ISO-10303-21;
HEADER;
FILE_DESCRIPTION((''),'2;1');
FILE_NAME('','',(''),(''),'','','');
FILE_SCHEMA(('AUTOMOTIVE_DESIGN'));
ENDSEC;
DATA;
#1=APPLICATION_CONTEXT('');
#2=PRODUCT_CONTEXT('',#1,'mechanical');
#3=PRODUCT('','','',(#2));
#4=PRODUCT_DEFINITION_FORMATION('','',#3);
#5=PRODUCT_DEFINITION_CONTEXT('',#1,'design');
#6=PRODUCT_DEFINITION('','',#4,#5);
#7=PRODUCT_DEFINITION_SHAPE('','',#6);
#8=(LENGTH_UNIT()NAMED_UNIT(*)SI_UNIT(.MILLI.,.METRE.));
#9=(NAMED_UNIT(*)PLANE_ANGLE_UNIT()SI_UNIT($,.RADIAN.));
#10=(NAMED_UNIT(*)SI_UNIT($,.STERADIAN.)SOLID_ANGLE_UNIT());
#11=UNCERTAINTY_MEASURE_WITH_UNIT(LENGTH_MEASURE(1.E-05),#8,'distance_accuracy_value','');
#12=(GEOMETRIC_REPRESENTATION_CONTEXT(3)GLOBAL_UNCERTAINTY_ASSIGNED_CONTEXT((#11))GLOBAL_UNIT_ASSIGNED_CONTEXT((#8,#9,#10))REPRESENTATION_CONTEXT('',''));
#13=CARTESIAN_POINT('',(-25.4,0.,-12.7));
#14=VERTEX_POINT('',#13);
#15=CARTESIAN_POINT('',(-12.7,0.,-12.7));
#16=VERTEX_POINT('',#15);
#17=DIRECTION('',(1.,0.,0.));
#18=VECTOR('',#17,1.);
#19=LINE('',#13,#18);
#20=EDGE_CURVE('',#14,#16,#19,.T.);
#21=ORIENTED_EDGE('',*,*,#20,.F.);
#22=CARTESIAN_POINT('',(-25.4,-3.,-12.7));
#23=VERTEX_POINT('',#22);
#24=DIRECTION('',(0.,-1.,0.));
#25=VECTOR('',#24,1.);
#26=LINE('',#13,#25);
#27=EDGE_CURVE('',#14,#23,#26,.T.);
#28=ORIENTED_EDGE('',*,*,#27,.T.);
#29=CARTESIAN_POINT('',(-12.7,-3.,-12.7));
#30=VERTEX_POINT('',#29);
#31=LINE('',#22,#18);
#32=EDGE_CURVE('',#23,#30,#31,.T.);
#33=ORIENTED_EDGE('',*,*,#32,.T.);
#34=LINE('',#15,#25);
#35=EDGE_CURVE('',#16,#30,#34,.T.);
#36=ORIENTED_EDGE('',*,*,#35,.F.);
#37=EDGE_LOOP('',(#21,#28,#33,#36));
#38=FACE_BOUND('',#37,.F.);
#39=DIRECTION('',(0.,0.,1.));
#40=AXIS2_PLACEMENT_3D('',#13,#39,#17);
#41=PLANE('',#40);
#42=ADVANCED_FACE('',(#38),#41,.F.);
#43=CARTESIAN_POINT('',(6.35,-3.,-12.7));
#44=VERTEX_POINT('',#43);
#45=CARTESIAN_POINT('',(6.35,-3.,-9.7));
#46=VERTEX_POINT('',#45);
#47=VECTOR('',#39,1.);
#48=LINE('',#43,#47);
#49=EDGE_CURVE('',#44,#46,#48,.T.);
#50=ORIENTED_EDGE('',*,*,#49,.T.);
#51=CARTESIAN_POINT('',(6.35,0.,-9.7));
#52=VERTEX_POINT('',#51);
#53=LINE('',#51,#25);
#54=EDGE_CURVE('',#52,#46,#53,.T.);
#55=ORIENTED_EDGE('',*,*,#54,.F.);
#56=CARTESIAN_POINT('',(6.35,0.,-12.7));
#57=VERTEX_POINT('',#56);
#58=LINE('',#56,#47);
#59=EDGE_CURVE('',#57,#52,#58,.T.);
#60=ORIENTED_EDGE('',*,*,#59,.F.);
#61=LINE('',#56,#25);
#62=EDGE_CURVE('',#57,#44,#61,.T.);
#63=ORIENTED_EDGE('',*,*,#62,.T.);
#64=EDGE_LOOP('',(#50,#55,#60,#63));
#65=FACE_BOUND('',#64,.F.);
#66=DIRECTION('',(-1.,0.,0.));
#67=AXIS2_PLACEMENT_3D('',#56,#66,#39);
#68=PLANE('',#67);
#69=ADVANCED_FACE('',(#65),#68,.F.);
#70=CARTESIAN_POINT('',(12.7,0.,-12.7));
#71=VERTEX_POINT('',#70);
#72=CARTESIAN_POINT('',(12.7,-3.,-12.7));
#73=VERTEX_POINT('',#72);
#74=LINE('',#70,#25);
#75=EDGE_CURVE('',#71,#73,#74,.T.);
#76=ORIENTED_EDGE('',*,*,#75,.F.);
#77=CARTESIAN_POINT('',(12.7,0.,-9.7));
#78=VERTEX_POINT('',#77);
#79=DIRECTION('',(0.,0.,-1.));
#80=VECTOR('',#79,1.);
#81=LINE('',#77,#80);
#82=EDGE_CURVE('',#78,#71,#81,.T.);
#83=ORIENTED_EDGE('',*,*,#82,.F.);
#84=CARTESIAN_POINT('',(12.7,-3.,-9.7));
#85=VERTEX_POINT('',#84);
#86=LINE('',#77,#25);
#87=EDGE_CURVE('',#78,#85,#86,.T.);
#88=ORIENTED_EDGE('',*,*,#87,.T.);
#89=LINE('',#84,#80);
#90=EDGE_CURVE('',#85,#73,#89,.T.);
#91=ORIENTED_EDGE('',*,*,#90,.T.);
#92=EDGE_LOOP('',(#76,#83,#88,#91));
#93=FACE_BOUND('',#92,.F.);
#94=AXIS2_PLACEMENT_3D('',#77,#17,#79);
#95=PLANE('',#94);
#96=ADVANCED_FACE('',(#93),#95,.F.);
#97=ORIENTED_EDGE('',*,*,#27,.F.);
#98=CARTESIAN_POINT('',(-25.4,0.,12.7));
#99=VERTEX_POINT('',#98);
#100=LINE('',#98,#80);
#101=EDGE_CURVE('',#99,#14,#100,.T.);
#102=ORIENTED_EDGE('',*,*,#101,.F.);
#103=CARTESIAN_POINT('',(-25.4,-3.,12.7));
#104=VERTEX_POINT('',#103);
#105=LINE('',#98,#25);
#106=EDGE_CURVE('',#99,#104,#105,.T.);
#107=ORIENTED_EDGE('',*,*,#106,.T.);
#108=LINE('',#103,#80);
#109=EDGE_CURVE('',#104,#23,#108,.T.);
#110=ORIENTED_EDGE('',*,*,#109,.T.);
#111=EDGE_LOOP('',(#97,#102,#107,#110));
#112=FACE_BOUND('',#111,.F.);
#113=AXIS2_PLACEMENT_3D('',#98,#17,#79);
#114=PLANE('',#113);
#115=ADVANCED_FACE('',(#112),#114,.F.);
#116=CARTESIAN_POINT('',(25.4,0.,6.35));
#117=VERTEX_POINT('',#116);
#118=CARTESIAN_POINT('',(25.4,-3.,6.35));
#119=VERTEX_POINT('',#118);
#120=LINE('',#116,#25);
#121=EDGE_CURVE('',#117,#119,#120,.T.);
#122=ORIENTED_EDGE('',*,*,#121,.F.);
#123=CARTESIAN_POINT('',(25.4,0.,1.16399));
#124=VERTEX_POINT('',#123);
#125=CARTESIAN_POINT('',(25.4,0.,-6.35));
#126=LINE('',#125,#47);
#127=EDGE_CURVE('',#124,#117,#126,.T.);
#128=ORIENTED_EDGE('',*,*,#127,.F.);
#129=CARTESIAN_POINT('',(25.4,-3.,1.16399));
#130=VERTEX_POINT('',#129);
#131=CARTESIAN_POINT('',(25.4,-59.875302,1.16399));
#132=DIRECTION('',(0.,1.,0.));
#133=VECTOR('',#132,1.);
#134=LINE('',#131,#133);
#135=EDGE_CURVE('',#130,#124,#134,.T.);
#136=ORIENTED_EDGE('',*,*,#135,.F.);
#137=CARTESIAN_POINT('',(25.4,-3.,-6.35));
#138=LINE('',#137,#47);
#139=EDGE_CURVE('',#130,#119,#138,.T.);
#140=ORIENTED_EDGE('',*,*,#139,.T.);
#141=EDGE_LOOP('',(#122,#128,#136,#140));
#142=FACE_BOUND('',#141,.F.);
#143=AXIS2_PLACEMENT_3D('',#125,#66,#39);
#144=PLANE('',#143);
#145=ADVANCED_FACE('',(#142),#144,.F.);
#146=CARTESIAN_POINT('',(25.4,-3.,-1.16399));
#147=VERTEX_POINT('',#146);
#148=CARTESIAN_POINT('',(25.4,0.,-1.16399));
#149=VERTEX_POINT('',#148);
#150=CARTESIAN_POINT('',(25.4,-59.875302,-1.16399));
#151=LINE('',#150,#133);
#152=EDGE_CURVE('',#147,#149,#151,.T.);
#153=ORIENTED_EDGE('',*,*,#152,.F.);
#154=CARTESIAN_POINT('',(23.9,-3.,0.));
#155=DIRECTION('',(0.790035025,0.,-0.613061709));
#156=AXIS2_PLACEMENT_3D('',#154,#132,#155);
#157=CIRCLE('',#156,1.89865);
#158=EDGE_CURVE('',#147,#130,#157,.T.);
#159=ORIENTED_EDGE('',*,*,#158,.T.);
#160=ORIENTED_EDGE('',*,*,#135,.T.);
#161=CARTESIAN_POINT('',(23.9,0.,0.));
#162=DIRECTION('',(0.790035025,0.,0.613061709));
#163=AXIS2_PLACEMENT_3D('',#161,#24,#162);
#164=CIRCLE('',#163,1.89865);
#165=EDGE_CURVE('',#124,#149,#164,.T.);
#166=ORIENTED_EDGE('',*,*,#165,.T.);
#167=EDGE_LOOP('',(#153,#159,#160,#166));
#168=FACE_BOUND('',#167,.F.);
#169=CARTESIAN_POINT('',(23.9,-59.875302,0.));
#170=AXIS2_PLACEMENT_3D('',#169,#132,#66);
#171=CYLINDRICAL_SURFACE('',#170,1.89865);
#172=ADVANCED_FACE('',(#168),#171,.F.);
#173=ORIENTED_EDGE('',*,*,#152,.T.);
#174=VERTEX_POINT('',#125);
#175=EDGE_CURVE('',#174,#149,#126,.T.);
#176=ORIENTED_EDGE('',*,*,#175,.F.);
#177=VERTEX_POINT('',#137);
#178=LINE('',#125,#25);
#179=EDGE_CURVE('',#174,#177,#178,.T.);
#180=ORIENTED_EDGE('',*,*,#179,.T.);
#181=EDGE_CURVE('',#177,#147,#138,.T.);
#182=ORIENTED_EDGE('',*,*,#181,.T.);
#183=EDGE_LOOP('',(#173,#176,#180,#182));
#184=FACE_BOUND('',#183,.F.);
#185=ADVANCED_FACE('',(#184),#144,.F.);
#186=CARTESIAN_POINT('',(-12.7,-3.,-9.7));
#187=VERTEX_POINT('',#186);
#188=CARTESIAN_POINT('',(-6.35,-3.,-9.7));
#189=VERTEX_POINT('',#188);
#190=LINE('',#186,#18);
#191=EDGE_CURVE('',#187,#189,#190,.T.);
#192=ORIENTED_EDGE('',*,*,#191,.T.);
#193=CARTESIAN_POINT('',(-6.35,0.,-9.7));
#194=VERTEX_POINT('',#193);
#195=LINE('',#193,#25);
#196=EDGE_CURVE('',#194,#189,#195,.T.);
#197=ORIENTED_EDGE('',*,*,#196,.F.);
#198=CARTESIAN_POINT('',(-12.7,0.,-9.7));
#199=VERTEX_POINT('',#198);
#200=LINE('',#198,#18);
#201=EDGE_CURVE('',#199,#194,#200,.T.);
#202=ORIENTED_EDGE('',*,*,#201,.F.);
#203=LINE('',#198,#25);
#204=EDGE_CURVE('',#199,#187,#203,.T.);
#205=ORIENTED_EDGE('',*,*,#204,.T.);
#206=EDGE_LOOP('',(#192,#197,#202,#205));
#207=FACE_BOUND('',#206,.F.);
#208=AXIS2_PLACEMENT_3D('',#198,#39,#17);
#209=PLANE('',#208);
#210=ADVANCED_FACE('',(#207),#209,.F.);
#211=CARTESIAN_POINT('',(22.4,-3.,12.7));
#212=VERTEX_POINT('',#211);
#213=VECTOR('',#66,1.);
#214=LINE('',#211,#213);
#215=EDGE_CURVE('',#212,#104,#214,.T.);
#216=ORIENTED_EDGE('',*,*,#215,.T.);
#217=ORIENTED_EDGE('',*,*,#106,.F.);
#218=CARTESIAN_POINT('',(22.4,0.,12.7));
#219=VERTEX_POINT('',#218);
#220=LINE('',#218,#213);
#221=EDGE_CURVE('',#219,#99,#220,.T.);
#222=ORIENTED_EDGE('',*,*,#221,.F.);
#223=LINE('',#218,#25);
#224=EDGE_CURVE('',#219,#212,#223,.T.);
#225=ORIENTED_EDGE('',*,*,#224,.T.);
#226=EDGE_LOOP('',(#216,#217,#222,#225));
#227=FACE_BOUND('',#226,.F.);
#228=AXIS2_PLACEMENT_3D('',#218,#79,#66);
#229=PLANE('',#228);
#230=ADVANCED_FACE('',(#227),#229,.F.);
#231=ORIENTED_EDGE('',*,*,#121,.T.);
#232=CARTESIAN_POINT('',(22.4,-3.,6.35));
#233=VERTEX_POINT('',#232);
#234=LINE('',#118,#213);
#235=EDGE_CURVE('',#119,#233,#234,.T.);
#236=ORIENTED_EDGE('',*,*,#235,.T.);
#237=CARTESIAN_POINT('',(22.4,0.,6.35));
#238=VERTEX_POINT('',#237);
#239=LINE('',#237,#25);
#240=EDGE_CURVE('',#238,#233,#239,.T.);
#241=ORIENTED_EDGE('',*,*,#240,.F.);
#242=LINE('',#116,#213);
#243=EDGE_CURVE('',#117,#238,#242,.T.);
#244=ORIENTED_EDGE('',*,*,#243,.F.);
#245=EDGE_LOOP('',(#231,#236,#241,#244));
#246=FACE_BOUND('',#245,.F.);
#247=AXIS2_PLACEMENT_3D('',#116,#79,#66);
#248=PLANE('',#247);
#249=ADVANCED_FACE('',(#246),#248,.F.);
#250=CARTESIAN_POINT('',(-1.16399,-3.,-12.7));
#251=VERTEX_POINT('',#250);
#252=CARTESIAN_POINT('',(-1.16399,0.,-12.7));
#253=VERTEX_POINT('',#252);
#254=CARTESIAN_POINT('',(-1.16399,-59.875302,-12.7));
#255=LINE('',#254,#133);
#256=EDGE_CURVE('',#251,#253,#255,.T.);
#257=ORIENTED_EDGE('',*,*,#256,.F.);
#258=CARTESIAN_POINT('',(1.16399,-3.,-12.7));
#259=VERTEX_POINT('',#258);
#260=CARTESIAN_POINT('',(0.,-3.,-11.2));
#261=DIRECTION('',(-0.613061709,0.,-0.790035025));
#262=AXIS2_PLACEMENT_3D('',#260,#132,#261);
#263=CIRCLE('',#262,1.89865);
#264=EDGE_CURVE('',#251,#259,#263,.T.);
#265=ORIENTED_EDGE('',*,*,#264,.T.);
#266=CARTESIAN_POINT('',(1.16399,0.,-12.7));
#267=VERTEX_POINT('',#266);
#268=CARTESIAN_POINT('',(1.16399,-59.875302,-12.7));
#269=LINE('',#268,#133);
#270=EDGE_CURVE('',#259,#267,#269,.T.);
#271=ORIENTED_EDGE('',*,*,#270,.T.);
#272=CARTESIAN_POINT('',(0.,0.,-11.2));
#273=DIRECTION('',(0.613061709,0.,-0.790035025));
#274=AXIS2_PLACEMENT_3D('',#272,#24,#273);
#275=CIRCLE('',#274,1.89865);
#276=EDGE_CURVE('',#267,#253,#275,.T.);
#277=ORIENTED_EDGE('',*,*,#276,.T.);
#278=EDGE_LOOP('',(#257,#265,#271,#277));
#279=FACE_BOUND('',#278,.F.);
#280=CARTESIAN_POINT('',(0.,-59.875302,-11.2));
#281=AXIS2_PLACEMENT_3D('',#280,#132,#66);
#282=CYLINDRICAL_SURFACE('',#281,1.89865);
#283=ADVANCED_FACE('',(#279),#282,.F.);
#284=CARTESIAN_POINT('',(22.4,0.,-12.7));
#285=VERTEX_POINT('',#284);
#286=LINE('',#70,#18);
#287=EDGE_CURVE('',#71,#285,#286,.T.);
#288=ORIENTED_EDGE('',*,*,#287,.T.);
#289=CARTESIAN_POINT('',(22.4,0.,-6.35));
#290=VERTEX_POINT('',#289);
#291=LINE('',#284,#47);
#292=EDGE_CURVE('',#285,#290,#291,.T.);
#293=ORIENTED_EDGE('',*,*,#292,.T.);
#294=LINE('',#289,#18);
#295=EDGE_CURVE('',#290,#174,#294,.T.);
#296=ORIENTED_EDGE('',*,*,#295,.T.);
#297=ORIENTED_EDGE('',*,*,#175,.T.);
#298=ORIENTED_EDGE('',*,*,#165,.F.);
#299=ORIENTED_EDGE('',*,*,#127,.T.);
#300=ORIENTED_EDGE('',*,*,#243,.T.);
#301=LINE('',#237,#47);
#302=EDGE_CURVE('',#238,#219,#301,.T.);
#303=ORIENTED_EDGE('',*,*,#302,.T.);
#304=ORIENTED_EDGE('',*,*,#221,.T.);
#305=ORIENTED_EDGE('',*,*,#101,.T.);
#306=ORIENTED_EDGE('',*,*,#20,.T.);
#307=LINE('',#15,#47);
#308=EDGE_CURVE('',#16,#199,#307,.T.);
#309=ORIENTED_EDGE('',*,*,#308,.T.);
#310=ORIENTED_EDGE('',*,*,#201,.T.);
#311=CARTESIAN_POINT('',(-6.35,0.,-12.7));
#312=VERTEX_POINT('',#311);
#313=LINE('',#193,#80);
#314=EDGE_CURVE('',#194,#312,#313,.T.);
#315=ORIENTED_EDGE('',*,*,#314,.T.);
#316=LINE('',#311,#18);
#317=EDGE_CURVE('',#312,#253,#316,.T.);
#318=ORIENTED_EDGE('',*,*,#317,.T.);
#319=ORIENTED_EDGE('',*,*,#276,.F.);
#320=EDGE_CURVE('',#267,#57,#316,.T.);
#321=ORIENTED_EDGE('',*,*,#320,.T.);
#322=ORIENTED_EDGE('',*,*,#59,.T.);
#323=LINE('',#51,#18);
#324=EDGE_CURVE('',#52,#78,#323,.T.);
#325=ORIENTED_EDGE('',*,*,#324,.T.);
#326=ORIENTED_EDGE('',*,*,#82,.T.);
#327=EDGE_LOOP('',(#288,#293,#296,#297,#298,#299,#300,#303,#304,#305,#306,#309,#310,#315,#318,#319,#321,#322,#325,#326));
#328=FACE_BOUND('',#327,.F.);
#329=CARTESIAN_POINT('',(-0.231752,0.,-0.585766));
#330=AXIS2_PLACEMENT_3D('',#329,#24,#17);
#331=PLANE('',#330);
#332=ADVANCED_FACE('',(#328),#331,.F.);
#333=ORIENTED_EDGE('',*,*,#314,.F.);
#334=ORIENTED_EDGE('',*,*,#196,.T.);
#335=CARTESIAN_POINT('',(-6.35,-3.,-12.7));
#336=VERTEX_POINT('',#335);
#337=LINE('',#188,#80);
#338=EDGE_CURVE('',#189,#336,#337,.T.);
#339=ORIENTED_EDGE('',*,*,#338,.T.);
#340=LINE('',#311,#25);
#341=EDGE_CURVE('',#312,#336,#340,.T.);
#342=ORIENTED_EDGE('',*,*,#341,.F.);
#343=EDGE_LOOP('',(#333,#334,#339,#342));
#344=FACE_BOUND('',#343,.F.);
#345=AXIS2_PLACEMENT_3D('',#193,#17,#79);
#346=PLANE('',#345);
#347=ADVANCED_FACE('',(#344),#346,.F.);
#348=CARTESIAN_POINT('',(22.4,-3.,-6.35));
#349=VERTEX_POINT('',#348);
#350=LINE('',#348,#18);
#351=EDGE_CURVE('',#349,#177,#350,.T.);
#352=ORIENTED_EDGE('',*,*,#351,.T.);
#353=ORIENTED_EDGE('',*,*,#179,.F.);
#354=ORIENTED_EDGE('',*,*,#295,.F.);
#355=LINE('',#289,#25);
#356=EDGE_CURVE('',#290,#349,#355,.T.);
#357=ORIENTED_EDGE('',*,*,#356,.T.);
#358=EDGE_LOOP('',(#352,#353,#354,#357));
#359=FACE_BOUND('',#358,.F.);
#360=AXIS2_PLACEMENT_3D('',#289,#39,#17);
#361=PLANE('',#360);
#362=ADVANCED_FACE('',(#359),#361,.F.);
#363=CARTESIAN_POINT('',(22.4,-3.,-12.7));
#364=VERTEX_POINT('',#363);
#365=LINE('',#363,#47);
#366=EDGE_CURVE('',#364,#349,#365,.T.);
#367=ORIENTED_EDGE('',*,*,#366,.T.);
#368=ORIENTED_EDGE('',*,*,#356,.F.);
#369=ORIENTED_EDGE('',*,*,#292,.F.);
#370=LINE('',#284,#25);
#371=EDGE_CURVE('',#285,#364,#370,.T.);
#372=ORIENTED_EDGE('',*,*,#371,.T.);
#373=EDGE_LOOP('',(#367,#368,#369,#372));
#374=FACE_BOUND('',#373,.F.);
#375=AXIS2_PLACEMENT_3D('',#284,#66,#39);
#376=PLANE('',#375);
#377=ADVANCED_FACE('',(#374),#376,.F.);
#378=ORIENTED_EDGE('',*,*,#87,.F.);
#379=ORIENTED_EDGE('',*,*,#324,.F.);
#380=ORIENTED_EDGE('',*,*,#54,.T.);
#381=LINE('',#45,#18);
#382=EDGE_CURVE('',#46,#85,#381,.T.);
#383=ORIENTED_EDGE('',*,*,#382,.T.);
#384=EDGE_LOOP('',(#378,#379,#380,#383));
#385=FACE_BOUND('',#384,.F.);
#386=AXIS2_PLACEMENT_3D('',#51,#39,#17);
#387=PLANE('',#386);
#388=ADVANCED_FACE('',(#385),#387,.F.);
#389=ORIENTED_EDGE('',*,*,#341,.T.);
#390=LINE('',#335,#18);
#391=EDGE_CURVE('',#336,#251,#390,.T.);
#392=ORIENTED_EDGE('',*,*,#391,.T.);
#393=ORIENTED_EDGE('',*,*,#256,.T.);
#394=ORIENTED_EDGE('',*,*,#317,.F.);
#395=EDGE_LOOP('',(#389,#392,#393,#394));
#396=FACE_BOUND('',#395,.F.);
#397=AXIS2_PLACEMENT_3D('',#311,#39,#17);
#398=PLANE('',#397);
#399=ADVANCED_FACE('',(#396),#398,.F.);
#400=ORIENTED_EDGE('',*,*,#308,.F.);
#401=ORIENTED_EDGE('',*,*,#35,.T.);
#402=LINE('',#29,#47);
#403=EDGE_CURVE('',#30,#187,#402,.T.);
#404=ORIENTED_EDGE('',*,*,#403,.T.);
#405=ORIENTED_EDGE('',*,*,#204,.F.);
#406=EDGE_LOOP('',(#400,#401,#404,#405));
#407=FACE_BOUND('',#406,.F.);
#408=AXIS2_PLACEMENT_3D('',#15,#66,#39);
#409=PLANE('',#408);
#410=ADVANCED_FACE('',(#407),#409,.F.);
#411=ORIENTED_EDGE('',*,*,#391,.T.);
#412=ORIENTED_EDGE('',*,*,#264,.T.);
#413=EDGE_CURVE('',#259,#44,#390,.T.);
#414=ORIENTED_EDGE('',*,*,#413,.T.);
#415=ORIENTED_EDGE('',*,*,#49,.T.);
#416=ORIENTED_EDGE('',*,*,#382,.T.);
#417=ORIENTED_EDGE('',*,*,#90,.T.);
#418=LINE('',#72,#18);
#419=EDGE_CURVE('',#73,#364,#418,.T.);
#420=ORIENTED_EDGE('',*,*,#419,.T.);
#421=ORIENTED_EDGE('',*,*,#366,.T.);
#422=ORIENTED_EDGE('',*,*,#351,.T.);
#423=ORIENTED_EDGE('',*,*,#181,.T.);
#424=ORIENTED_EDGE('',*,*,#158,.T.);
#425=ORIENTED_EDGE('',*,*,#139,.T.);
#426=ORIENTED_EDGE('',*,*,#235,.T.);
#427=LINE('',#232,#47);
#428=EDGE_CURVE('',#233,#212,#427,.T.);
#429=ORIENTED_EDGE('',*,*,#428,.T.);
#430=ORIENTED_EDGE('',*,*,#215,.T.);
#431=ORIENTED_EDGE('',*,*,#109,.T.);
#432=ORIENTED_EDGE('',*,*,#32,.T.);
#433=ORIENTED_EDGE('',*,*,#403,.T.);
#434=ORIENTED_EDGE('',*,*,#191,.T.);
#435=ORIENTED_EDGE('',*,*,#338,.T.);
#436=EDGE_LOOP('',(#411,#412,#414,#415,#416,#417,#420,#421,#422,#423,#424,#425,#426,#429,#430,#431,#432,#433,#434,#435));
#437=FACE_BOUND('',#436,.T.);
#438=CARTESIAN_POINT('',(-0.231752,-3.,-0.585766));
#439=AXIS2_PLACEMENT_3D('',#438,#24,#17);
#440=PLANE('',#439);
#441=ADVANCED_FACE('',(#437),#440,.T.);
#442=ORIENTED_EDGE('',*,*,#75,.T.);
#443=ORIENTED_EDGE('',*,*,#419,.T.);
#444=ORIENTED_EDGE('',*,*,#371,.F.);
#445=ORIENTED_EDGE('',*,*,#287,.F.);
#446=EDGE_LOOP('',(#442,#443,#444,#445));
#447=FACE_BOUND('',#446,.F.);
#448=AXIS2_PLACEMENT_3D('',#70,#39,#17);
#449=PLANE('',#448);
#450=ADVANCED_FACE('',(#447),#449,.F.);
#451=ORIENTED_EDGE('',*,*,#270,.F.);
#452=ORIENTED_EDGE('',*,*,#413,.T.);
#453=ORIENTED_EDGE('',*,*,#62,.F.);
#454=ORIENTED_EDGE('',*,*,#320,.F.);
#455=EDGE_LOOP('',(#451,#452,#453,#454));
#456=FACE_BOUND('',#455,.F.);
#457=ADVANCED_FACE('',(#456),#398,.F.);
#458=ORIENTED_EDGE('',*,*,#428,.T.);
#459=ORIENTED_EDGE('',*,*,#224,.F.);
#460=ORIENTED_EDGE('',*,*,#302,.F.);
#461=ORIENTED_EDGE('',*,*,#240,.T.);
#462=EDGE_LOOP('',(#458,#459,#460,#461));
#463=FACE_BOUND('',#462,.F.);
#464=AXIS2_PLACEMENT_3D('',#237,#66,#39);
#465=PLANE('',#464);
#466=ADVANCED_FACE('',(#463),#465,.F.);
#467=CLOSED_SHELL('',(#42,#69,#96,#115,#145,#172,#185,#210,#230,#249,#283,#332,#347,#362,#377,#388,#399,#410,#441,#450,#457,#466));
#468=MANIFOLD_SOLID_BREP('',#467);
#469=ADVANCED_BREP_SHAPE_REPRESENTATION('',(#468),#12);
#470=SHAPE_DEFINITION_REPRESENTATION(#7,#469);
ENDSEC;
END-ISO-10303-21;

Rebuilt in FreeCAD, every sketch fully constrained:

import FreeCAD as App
import Part
import Sketcher

V = App.Vector
Q = App.Units.Quantity


def add_polygon(sketch, points):
    """Adds a closed chain of lines whose ends are joined by coincident constraints."""
    first, n = sketch.GeometryCount, len(points)
    for a, b in zip(points, points[1:] + points[:1]):
        sketch.addGeometry(Part.LineSegment(App.Vector(*a, 0), App.Vector(*b, 0)), False)
    for i in range(n):
        sketch.addConstraint(Sketcher.Constraint("Coincident", first + i, 2, first + (i + 1) % n, 1))

doc = App.newDocument("Part")
body = doc.addObject("PartDesign::Body", "Body")

sketch1 = doc.addObject("Sketcher::SketchObject", "Sketch")
body.addObject(sketch1)
sketch1.AttachmentSupport = (doc.XZ_Plane, [""])
sketch1.MapMode = "FlatFace"
add_polygon(sketch1, [(22.4, 12.7), (-25.4, 12.7), (-25.4, -12.7), (-12.7, -12.7), (-12.7, -9.7), (-6.35, -9.7), (-6.35, -12.7), (6.35, -12.7), (6.35, -9.7), (12.7, -9.7), (12.7, -12.7), (22.4, -12.7), (22.4, -6.35), (25.4, -6.35), (25.4, 6.35), (22.4, 6.35)])
sketch1.addConstraint(Sketcher.Constraint("Horizontal", 0))
sketch1.addConstraint(Sketcher.Constraint("Vertical", 1))
sketch1.addConstraint(Sketcher.Constraint("Horizontal", 2))
sketch1.addConstraint(Sketcher.Constraint("Vertical", 3))
sketch1.addConstraint(Sketcher.Constraint("Horizontal", 4))
sketch1.addConstraint(Sketcher.Constraint("Vertical", 5))
sketch1.addConstraint(Sketcher.Constraint("Horizontal", 6))
sketch1.addConstraint(Sketcher.Constraint("Vertical", 7))
sketch1.addConstraint(Sketcher.Constraint("Horizontal", 8))
sketch1.addConstraint(Sketcher.Constraint("Vertical", 9))
sketch1.addConstraint(Sketcher.Constraint("Horizontal", 10))
sketch1.addConstraint(Sketcher.Constraint("Vertical", 11))
sketch1.addConstraint(Sketcher.Constraint("Horizontal", 12))
sketch1.addConstraint(Sketcher.Constraint("Vertical", 13))
sketch1.addConstraint(Sketcher.Constraint("Horizontal", 14))
sketch1.addConstraint(Sketcher.Constraint("Vertical", 15))
sketch1.addConstraint(Sketcher.Constraint("Symmetric", 4, 2, 7, 2, -2))
sketch1.addConstraint(Sketcher.Constraint("Symmetric", 2, 2, 9, 2, -2))
sketch1.addConstraint(Sketcher.Constraint("Symmetric", 11, 2, 14, 2, -1))
sketch1.addConstraint(Sketcher.Constraint("Horizontal", 2, 2, 5, 2))
sketch1.addConstraint(Sketcher.Constraint("Equal", 2, 6))
sketch1.addConstraint(Sketcher.Constraint("Equal", 14, 3))
sketch1.addConstraint(Sketcher.Constraint("Equal", 8, 11))
sketch1.addConstraint(Sketcher.Constraint("Equal", 6, 13))
sketch1.addConstraint(Sketcher.Constraint("Equal", 11, 15))
sketch1.addConstraint(Sketcher.Constraint("DistanceX", 12, 1, 12, 2, Q("3 mm")))
sketch1.addConstraint(Sketcher.Constraint("DistanceX", 0, 2, 0, 1, Q("47.8 mm")))
sketch1.addConstraint(Sketcher.Constraint("DistanceX", 2, 1, 2, 2, Q("12.7 mm")))
sketch1.addConstraint(Sketcher.Constraint("DistanceX", 10, 1, 10, 2, Q("9.7 mm")))
pad1 = doc.addObject("PartDesign::Pad", "Pad")
body.addObject(pad1)
pad1.Profile = sketch1
pad1.Length = 3

sketch2 = doc.addObject("Sketcher::SketchObject", "Sketch001")
body.addObject(sketch2)
sketch2.AttachmentSupport = (doc.XZ_Plane, [""])
sketch2.MapMode = "FlatFace"
sketch2.AttachmentOffset = App.Placement(V(0, 0, 3), App.Rotation())
sketch2.addGeometry(Part.Circle(V(0, -11.2, 0), V(0, 0, 1), 1.89865), False)
sketch2.addConstraint(Sketcher.Constraint("PointOnObject", 0, 3, -2))
sketch2.addConstraint(Sketcher.Constraint("Diameter", 0, Q("3.7973 mm")))
sketch2.addConstraint(Sketcher.Constraint("DistanceY", 0, 3, -1, 1, Q("11.2 mm")))
doc.recompute()
hole = doc.addObject("PartDesign::Hole", "Hole")
body.addObject(hole)
hole.Profile = sketch2
hole.ThreadType = "None"
hole.Diameter = 3.7973
hole.DepthType = "ThroughAll"

sketch3 = doc.addObject("Sketcher::SketchObject", "Sketch002")
body.addObject(sketch3)
sketch3.AttachmentSupport = (doc.XZ_Plane, [""])
sketch3.MapMode = "FlatFace"
sketch3.AttachmentOffset = App.Placement(V(0, 0, 3), App.Rotation())
sketch3.addGeometry(Part.Circle(V(23.9, 0, 0), V(0, 0, 1), 1.89865), False)
sketch3.addConstraint(Sketcher.Constraint("PointOnObject", 0, 3, -1))
sketch3.addConstraint(Sketcher.Constraint("Diameter", 0, Q("3.7973 mm")))
sketch3.addConstraint(Sketcher.Constraint("DistanceX", -1, 1, 0, 3, Q("23.9 mm")))
doc.recompute()
hole2 = doc.addObject("PartDesign::Hole", "Hole001")
body.addObject(hole2)
hole2.Profile = sketch3
hole2.ThreadType = "None"
hole2.Diameter = 3.7973
hole2.DepthType = "ThroughAll"

doc.recompute()
